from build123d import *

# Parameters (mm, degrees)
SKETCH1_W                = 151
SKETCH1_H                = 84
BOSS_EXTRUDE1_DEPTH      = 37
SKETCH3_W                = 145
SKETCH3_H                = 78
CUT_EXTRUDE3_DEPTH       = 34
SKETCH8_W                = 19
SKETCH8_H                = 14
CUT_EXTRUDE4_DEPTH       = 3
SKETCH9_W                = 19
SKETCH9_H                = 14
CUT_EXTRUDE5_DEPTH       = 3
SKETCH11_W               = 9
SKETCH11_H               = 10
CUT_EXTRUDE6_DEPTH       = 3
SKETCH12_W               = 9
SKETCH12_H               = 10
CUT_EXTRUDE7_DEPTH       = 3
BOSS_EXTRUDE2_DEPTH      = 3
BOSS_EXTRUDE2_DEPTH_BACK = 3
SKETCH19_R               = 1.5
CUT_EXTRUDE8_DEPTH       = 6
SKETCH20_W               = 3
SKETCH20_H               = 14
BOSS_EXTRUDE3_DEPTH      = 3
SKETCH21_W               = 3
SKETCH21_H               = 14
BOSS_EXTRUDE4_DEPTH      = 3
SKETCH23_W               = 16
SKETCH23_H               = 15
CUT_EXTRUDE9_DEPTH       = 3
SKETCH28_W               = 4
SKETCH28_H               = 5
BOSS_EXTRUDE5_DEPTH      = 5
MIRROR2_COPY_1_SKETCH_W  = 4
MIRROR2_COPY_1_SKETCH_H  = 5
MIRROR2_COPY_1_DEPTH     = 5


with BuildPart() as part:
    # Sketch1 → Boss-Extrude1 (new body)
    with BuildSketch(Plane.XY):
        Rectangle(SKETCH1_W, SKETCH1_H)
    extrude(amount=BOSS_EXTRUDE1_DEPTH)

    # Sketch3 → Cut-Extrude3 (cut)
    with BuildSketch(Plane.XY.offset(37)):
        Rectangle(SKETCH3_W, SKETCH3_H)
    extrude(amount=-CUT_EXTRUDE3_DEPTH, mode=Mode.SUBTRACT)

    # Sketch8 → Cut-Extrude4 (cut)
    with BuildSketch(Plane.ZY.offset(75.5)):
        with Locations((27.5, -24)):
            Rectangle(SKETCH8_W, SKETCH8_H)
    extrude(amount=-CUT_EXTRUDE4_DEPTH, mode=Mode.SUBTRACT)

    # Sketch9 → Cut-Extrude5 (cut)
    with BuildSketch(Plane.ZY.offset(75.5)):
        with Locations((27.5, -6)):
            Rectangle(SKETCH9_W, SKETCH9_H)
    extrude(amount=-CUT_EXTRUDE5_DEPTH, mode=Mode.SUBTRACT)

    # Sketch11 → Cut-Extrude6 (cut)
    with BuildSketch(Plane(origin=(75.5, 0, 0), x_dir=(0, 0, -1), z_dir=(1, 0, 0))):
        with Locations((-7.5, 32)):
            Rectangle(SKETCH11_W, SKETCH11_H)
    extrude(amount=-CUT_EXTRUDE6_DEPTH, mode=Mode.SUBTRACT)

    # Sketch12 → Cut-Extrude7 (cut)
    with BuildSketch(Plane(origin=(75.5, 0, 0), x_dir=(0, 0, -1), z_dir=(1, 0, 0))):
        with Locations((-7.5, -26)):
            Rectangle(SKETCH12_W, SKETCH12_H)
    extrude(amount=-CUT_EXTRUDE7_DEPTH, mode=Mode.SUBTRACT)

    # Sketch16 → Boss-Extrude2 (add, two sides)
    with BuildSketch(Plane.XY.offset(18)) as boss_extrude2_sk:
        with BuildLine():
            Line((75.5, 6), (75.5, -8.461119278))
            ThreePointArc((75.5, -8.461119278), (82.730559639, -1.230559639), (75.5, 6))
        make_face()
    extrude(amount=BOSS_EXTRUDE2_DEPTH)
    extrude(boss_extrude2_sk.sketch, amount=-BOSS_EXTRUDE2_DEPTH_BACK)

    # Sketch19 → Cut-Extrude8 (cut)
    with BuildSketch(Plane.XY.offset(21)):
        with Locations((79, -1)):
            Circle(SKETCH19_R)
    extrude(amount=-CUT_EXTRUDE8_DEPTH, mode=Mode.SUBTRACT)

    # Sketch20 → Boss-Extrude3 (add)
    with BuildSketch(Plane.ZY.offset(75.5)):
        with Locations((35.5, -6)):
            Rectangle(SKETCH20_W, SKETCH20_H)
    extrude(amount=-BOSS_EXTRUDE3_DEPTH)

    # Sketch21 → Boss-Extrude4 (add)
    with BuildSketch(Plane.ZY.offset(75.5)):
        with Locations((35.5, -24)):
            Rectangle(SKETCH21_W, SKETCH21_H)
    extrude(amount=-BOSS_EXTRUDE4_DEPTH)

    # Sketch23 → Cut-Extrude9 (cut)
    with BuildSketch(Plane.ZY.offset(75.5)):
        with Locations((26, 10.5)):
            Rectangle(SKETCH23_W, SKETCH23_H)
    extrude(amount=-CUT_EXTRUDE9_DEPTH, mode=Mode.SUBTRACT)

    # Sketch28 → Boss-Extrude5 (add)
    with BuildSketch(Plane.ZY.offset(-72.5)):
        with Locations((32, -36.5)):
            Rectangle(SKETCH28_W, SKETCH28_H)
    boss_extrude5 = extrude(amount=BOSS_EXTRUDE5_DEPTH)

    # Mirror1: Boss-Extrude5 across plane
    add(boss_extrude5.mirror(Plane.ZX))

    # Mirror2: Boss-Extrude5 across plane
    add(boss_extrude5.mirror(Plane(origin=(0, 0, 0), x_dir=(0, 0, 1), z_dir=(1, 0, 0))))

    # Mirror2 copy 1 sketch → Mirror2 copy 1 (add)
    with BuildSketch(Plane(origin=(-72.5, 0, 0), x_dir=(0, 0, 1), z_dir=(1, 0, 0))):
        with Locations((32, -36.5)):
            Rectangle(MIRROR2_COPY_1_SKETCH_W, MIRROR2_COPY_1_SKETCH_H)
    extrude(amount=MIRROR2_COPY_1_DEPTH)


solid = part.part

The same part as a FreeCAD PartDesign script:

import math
import FreeCAD as App
import Part
import Sketcher

V = App.Vector

doc = App.newDocument("Part")
body = doc.addObject("PartDesign::Body", "Body")

sketch1 = doc.addObject("Sketcher::SketchObject", "Sketch")
body.addObject(sketch1)
sketch1.AttachmentSupport = (doc.XY_Plane, [""])
sketch1.MapMode = "FlatFace"
sketch1.addGeometry(Part.LineSegment(V(-76, 42, 0), V(-76, -42, 0)), False)
sketch1.addGeometry(Part.LineSegment(V(-76, -42, 0), V(76, -42, 0)), False)
sketch1.addGeometry(Part.LineSegment(V(76, -42, 0), V(76, 42, 0)), False)
sketch1.addGeometry(Part.LineSegment(V(76, 42, 0), V(-76, 42, 0)), False)
sketch1.addConstraint(Sketcher.Constraint("Coincident", 0, 2, 1, 1))
sketch1.addConstraint(Sketcher.Constraint("Coincident", 1, 2, 2, 1))
sketch1.addConstraint(Sketcher.Constraint("Coincident", 2, 2, 3, 1))
sketch1.addConstraint(Sketcher.Constraint("Coincident", 3, 2, 0, 1))
sketch1.addConstraint(Sketcher.Constraint("Vertical", 0))
sketch1.addConstraint(Sketcher.Constraint("Horizontal", 1))
sketch1.addConstraint(Sketcher.Constraint("Vertical", 2))
sketch1.addConstraint(Sketcher.Constraint("Horizontal", 3))
sketch1.addConstraint(Sketcher.Constraint("Symmetric", 0, 2, 2, 2, -1, 1))
sketch1.addConstraint(Sketcher.Constraint("DistanceX", 1, 1, 1, 2, 151.0))
sketch1.addConstraint(Sketcher.Constraint("DistanceY", 0, 2, 0, 1, 84.0))
pad1 = doc.addObject("PartDesign::Pad", "Pad")
body.addObject(pad1)
pad1.Profile = sketch1
pad1.Length = 37

sketch2 = doc.addObject("Sketcher::SketchObject", "Sketch001")
body.addObject(sketch2)
sketch2.AttachmentSupport = (doc.XY_Plane, [""])
sketch2.MapMode = "FlatFace"
sketch2.AttachmentOffset = App.Placement(V(0, 0, 37), App.Rotation())
sketch2.addGeometry(Part.LineSegment(V(-72, 39, 0), V(-72, -39, 0)), False)
sketch2.addGeometry(Part.LineSegment(V(-72, -39, 0), V(72, -39, 0)), False)
sketch2.addGeometry(Part.LineSegment(V(72, -39, 0), V(72, 39, 0)), False)
sketch2.addGeometry(Part.LineSegment(V(72, 39, 0), V(-72, 39, 0)), False)
sketch2.addConstraint(Sketcher.Constraint("Coincident", 0, 2, 1, 1))
sketch2.addConstraint(Sketcher.Constraint("Coincident", 1, 2, 2, 1))
sketch2.addConstraint(Sketcher.Constraint("Coincident", 2, 2, 3, 1))
sketch2.addConstraint(Sketcher.Constraint("Coincident", 3, 2, 0, 1))
sketch2.addConstraint(Sketcher.Constraint("Vertical", 0))
sketch2.addConstraint(Sketcher.Constraint("Horizontal", 1))
sketch2.addConstraint(Sketcher.Constraint("Vertical", 2))
sketch2.addConstraint(Sketcher.Constraint("Horizontal", 3))
sketch2.addConstraint(Sketcher.Constraint("Symmetric", 0, 2, 2, 2, -1, 1))
sketch2.addConstraint(Sketcher.Constraint("DistanceX", 1, 1, 1, 2, 145.0))
sketch2.addConstraint(Sketcher.Constraint("DistanceY", 0, 2, 0, 1, 78.0))
pocket1 = doc.addObject("PartDesign::Pocket", "Pocket")
body.addObject(pocket1)
pocket1.Profile = sketch2
pocket1.Length = 34

sketch3 = doc.addObject("Sketcher::SketchObject", "Sketch002")
body.addObject(sketch3)
sketch3.AttachmentSupport = (doc.YZ_Plane, [""])
sketch3.MapMode = "FlatFace"
sketch3.AttachmentOffset = App.Placement(V(0, 0, -75.5), App.Rotation())
sketch3.addGeometry(Part.LineSegment(V(-17, 18, 0), V(-31, 18, 0)), False)
sketch3.addGeometry(Part.LineSegment(V(-31, 18, 0), V(-31, 37, 0)), False)
sketch3.addGeometry(Part.LineSegment(V(-31, 37, 0), V(-17, 37, 0)), False)
sketch3.addGeometry(Part.LineSegment(V(-17, 37, 0), V(-17, 18, 0)), False)
sketch3.addConstraint(Sketcher.Constraint("Coincident", 0, 2, 1, 1))
sketch3.addConstraint(Sketcher.Constraint("Coincident", 1, 2, 2, 1))
sketch3.addConstraint(Sketcher.Constraint("Coincident", 2, 2, 3, 1))
sketch3.addConstraint(Sketcher.Constraint("Coincident", 3, 2, 0, 1))
sketch3.addConstraint(Sketcher.Constraint("Horizontal", 0))
sketch3.addConstraint(Sketcher.Constraint("Vertical", 1))
sketch3.addConstraint(Sketcher.Constraint("Horizontal", 2))
sketch3.addConstraint(Sketcher.Constraint("Vertical", 3))
sketch3.addConstraint(Sketcher.Constraint("DistanceX", 0, 2, 0, 1, 14.0))
sketch3.addConstraint(Sketcher.Constraint("DistanceY", 1, 1, 1, 2, 19.0))
sketch3.addConstraint(Sketcher.Constraint("DistanceX", 0, 2, -1, 1, 31.0))
sketch3.addConstraint(Sketcher.Constraint("DistanceY", -1, 1, 0, 2, 18.0))
pocket2 = doc.addObject("PartDesign::Pocket", "Pocket001")
body.addObject(pocket2)
pocket2.Profile = sketch3
pocket2.Length = 3
pocket2.Reversed = True

sketch4 = doc.addObject("Sketcher::SketchObject", "Sketch003")
body.addObject(sketch4)
sketch4.AttachmentSupport = (doc.YZ_Plane, [""])
sketch4.MapMode = "FlatFace"
sketch4.AttachmentOffset = App.Placement(V(0, 0, -75.5), App.Rotation())
sketch4.addGeometry(Part.LineSegment(V(1, 18, 0), V(-13, 18, 0)), False)
sketch4.addGeometry(Part.LineSegment(V(-13, 18, 0), V(-13, 37, 0)), False)
sketch4.addGeometry(Part.LineSegment(V(-13, 37, 0), V(1, 37, 0)), False)
sketch4.addGeometry(Part.LineSegment(V(1, 37, 0), V(1, 18, 0)), False)
sketch4.addConstraint(Sketcher.Constraint("Coincident", 0, 2, 1, 1))
sketch4.addConstraint(Sketcher.Constraint("Coincident", 1, 2, 2, 1))
sketch4.addConstraint(Sketcher.Constraint("Coincident", 2, 2, 3, 1))
sketch4.addConstraint(Sketcher.Constraint("Coincident", 3, 2, 0, 1))
sketch4.addConstraint(Sketcher.Constraint("Horizontal", 0))
sketch4.addConstraint(Sketcher.Constraint("Vertical", 1))
sketch4.addConstraint(Sketcher.Constraint("Horizontal", 2))
sketch4.addConstraint(Sketcher.Constraint("Vertical", 3))
sketch4.addConstraint(Sketcher.Constraint("DistanceX", 0, 2, 0, 1, 14.0))
sketch4.addConstraint(Sketcher.Constraint("DistanceY", 1, 1, 1, 2, 19.0))
sketch4.addConstraint(Sketcher.Constraint("DistanceX", 0, 2, -1, 1, 13.0))
sketch4.addConstraint(Sketcher.Constraint("DistanceY", -1, 1, 0, 2, 18.0))
pocket3 = doc.addObject("PartDesign::Pocket", "Pocket002")
body.addObject(pocket3)
pocket3.Profile = sketch4
pocket3.Length = 3
pocket3.Reversed = True

sketch5 = doc.addObject("Sketcher::SketchObject", "Sketch004")
body.addObject(sketch5)
sketch5.AttachmentSupport = (doc.YZ_Plane, [""])
sketch5.MapMode = "FlatFace"
sketch5.AttachmentOffset = App.Placement(V(0, 0, 75.5), App.Rotation())
sketch5.addGeometry(Part.LineSegment(V(37, 12, 0), V(27, 12, 0)), False)
sketch5.addGeometry(Part.LineSegment(V(27, 12, 0), V(27, 3, 0)), False)
sketch5.addGeometry(Part.LineSegment(V(27, 3, 0), V(37, 3, 0)), False)
sketch5.addGeometry(Part.LineSegment(V(37, 3, 0), V(37, 12, 0)), False)
sketch5.addConstraint(Sketcher.Constraint("Coincident", 0, 2, 1, 1))
sketch5.addConstraint(Sketcher.Constraint("Coincident", 1, 2, 2, 1))
sketch5.addConstraint(Sketcher.Constraint("Coincident", 2, 2, 3, 1))
sketch5.addConstraint(Sketcher.Constraint("Coincident", 3, 2, 0, 1))
sketch5.addConstraint(Sketcher.Constraint("Horizontal", 0))
sketch5.addConstraint(Sketcher.Constraint("Vertical", 1))
sketch5.addConstraint(Sketcher.Constraint("Horizontal", 2))
sketch5.addConstraint(Sketcher.Constraint("Vertical", 3))
sketch5.addConstraint(Sketcher.Constraint("DistanceX", 0, 2, 0, 1, 10.0))
sketch5.addConstraint(Sketcher.Constraint("DistanceY", 1, 2, 1, 1, 9.0))
sketch5.addConstraint(Sketcher.Constraint("DistanceX", -1, 1, 0, 2, 27.0))
sketch5.addConstraint(Sketcher.Constraint("DistanceY", -1, 1, 0, 2, 12.0))
pocket4 = doc.addObject("PartDesign::Pocket", "Pocket003")
body.addObject(pocket4)
pocket4.Profile = sketch5
pocket4.Length = 3

sketch6 = doc.addObject("Sketcher::SketchObject", "Sketch005")
body.addObject(sketch6)
sketch6.AttachmentSupport = (doc.YZ_Plane, [""])
sketch6.MapMode = "FlatFace"
sketch6.AttachmentOffset = App.Placement(V(0, 0, 75.5), App.Rotation())
sketch6.addGeometry(Part.LineSegment(V(-21, 12, 0), V(-31, 12, 0)), False)
sketch6.addGeometry(Part.LineSegment(V(-31, 12, 0), V(-31, 3, 0)), False)
sketch6.addGeometry(Part.LineSegment(V(-31, 3, 0), V(-21, 3, 0)), False)
sketch6.addGeometry(Part.LineSegment(V(-21, 3, 0), V(-21, 12, 0)), False)
sketch6.addConstraint(Sketcher.Constraint("Coincident", 0, 2, 1, 1))
sketch6.addConstraint(Sketcher.Constraint("Coincident", 1, 2, 2, 1))
sketch6.addConstraint(Sketcher.Constraint("Coincident", 2, 2, 3, 1))
sketch6.addConstraint(Sketcher.Constraint("Coincident", 3, 2, 0, 1))
sketch6.addConstraint(Sketcher.Constraint("Horizontal", 0))
sketch6.addConstraint(Sketcher.Constraint("Vertical", 1))
sketch6.addConstraint(Sketcher.Constraint("Horizontal", 2))
sketch6.addConstraint(Sketcher.Constraint("Vertical", 3))
sketch6.addConstraint(Sketcher.Constraint("DistanceX", 0, 2, 0, 1, 10.0))
sketch6.addConstraint(Sketcher.Constraint("DistanceY", 1, 2, 1, 1, 9.0))
sketch6.addConstraint(Sketcher.Constraint("DistanceX", 0, 2, -1, 1, 31.0))
sketch6.addConstraint(Sketcher.Constraint("DistanceY", -1, 1, 0, 2, 12.0))
pocket5 = doc.addObject("PartDesign::Pocket", "Pocket004")
body.addObject(pocket5)
pocket5.Profile = sketch6
pocket5.Length = 3

sketch7 = doc.addObject("Sketcher::SketchObject", "Sketch006")
body.addObject(sketch7)
sketch7.AttachmentSupport = (doc.XY_Plane, [""])
sketch7.MapMode = "FlatFace"
sketch7.AttachmentOffset = App.Placement(V(0, 0, 18), App.Rotation())
sketch7.addGeometry(Part.LineSegment(V(76, 6, 0), V(76, -8, 0)), False)
sketch7.addGeometry(Part.ArcOfCircle(Part.Circle(V(76, -1, 0), V(0, 0, 1), 7), math.radians(-90), math.radians(90)), False)
sketch7.addConstraint(Sketcher.Constraint("Coincident", 0, 1, 1, 2))
sketch7.addConstraint(Sketcher.Constraint("Coincident", 1, 1, 0, 2))
sketch7.addConstraint(Sketcher.Constraint("Vertical", 0))
sketch7.addConstraint(Sketcher.Constraint("Vertical", 1, 3, 0, 1))
sketch7.addConstraint(Sketcher.Constraint("DistanceY", -1, 1, 0, 1, 6.0))
sketch7.addConstraint(Sketcher.Constraint("DistanceX", -1, 1, 1, 3, 75.5))
sketch7.addConstraint(Sketcher.Constraint("Radius", 1, 7.23056))
pad2 = doc.addObject("PartDesign::Pad", "Pad001")
body.addObject(pad2)
pad2.Profile = sketch7
pad2.Type = "TwoLengths"
pad2.Length = 3
pad2.Length2 = 3

sketch8 = doc.addObject("Sketcher::SketchObject", "Sketch007")
body.addObject(sketch8)
sketch8.AttachmentSupport = (doc.XY_Plane, [""])
sketch8.MapMode = "FlatFace"
sketch8.AttachmentOffset = App.Placement(V(0, 0, 21), App.Rotation())
sketch8.addGeometry(Part.Circle(V(79, -1, 0), V(0, 0, 1), 1.5), False)
sketch8.addConstraint(Sketcher.Constraint("Diameter", 0, 3.0))
sketch8.addConstraint(Sketcher.Constraint("DistanceX", -1, 1, 0, 3, 79.0))
sketch8.addConstraint(Sketcher.Constraint("DistanceY", 0, 3, -1, 1, 1.0))
pocket6 = doc.addObject("PartDesign::Pocket", "Pocket005")
body.addObject(pocket6)
pocket6.Profile = sketch8
pocket6.Length = 6

sketch9 = doc.addObject("Sketcher::SketchObject", "Sketch008")
body.addObject(sketch9)
sketch9.AttachmentSupport = (doc.YZ_Plane, [""])
sketch9.MapMode = "FlatFace"
sketch9.AttachmentOffset = App.Placement(V(0, 0, -75.5), App.Rotation())
sketch9.addGeometry(Part.LineSegment(V(1, 34, 0), V(-13, 34, 0)), False)
sketch9.addGeometry(Part.LineSegment(V(-13, 34, 0), V(-13, 37, 0)), False)
sketch9.addGeometry(Part.LineSegment(V(-13, 37, 0), V(1, 37, 0)), False)
sketch9.addGeometry(Part.LineSegment(V(1, 37, 0), V(1, 34, 0)), False)
sketch9.addConstraint(Sketcher.Constraint("Coincident", 0, 2, 1, 1))
sketch9.addConstraint(Sketcher.Constraint("Coincident", 1, 2, 2, 1))
sketch9.addConstraint(Sketcher.Constraint("Coincident", 2, 2, 3, 1))
sketch9.addConstraint(Sketcher.Constraint("Coincident", 3, 2, 0, 1))
sketch9.addConstraint(Sketcher.Constraint("Horizontal", 0))
sketch9.addConstraint(Sketcher.Constraint("Vertical", 1))
sketch9.addConstraint(Sketcher.Constraint("Horizontal", 2))
sketch9.addConstraint(Sketcher.Constraint("Vertical", 3))
sketch9.addConstraint(Sketcher.Constraint("DistanceX", 0, 2, 0, 1, 14.0))
sketch9.addConstraint(Sketcher.Constraint("DistanceY", 1, 1, 1, 2, 3.0))
sketch9.addConstraint(Sketcher.Constraint("DistanceX", 0, 2, -1, 1, 13.0))
sketch9.addConstraint(Sketcher.Constraint("DistanceY", -1, 1, 0, 2, 34.0))
pad3 = doc.addObject("PartDesign::Pad", "Pad002")
body.addObject(pad3)
pad3.Profile = sketch9
pad3.Length = 3

sketch10 = doc.addObject("Sketcher::SketchObject", "Sketch009")
body.addObject(sketch10)
sketch10.AttachmentSupport = (doc.YZ_Plane, [""])
sketch10.MapMode = "FlatFace"
sketch10.AttachmentOffset = App.Placement(V(0, 0, -75.5), App.Rotation())
sketch10.addGeometry(Part.LineSegment(V(-17, 34, 0), V(-31, 34, 0)), False)
sketch10.addGeometry(Part.LineSegment(V(-31, 34, 0), V(-31, 37, 0)), False)
sketch10.addGeometry(Part.LineSegment(V(-31, 37, 0), V(-17, 37, 0)), False)
sketch10.addGeometry(Part.LineSegment(V(-17, 37, 0), V(-17, 34, 0)), False)
sketch10.addConstraint(Sketcher.Constraint("Coincident", 0, 2, 1, 1))
sketch10.addConstraint(Sketcher.Constraint("Coincident", 1, 2, 2, 1))
sketch10.addConstraint(Sketcher.Constraint("Coincident", 2, 2, 3, 1))
sketch10.addConstraint(Sketcher.Constraint("Coincident", 3, 2, 0, 1))
sketch10.addConstraint(Sketcher.Constraint("Horizontal", 0))
sketch10.addConstraint(Sketcher.Constraint("Vertical", 1))
sketch10.addConstraint(Sketcher.Constraint("Horizontal", 2))
sketch10.addConstraint(Sketcher.Constraint("Vertical", 3))
sketch10.addConstraint(Sketcher.Constraint("DistanceX", 0, 2, 0, 1, 14.0))
sketch10.addConstraint(Sketcher.Constraint("DistanceY", 1, 1, 1, 2, 3.0))
sketch10.addConstraint(Sketcher.Constraint("DistanceX", 0, 2, -1, 1, 31.0))
sketch10.addConstraint(Sketcher.Constraint("DistanceY", -1, 1, 0, 2, 34.0))
pad4 = doc.addObject("PartDesign::Pad", "Pad003")
body.addObject(pad4)
pad4.Profile = sketch10
pad4.Length = 3

sketch11 = doc.addObject("Sketcher::SketchObject", "Sketch010")
body.addObject(sketch11)
sketch11.AttachmentSupport = (doc.YZ_Plane, [""])
sketch11.MapMode = "FlatFace"
sketch11.AttachmentOffset = App.Placement(V(0, 0, -75.5), App.Rotation())
sketch11.addGeometry(Part.LineSegment(V(18, 18, 0), V(3, 18, 0)), False)
sketch11.addGeometry(Part.LineSegment(V(3, 18, 0), V(3, 34, 0)), False)
sketch11.addGeometry(Part.LineSegment(V(3, 34, 0), V(18, 34, 0)), False)
sketch11.addGeometry(Part.LineSegment(V(18, 34, 0), V(18, 18, 0)), False)
sketch11.addConstraint(Sketcher.Constraint("Coincident", 0, 2, 1, 1))
sketch11.addConstraint(Sketcher.Constraint("Coincident", 1, 2, 2, 1))
sketch11.addConstraint(Sketcher.Constraint("Coincident", 2, 2, 3, 1))
sketch11.addConstraint(Sketcher.Constraint("Coincident", 3, 2, 0, 1))
sketch11.addConstraint(Sketcher.Constraint("Horizontal", 0))
sketch11.addConstraint(Sketcher.Constraint("Vertical", 1))
sketch11.addConstraint(Sketcher.Constraint("Horizontal", 2))
sketch11.addConstraint(Sketcher.Constraint("Vertical", 3))
sketch11.addConstraint(Sketcher.Constraint("DistanceX", 0, 2, 0, 1, 15.0))
sketch11.addConstraint(Sketcher.Constraint("DistanceY", 1, 1, 1, 2, 16.0))
sketch11.addConstraint(Sketcher.Constraint("DistanceX", -1, 1, 0, 2, 3.0))
sketch11.addConstraint(Sketcher.Constraint("DistanceY", -1, 1, 0, 2, 18.0))
pocket7 = doc.addObject("PartDesign::Pocket", "Pocket006")
body.addObject(pocket7)
pocket7.Profile = sketch11
pocket7.Length = 3
pocket7.Reversed = True

sketch12 = doc.addObject("Sketcher::SketchObject", "Sketch011")
body.addObject(sketch12)
sketch12.AttachmentSupport = (doc.YZ_Plane, [""])
sketch12.MapMode = "FlatFace"
sketch12.AttachmentOffset = App.Placement(V(0, 0, 72.5), App.Rotation())
sketch12.addGeometry(Part.LineSegment(V(-34, 30, 0), V(-39, 30, 0)), False)
sketch12.addGeometry(Part.LineSegment(V(-39, 30, 0), V(-39, 34, 0)), False)
sketch12.addGeometry(Part.LineSegment(V(-39, 34, 0), V(-34, 34, 0)), False)
sketch12.addGeometry(Part.LineSegment(V(-34, 34, 0), V(-34, 30, 0)), False)
sketch12.addConstraint(Sketcher.Constraint("Coincident", 0, 2, 1, 1))
sketch12.addConstraint(Sketcher.Constraint("Coincident", 1, 2, 2, 1))
sketch12.addConstraint(Sketcher.Constraint("Coincident", 2, 2, 3, 1))
sketch12.addConstraint(Sketcher.Constraint("Coincident", 3, 2, 0, 1))
sketch12.addConstraint(Sketcher.Constraint("Horizontal", 0))
sketch12.addConstraint(Sketcher.Constraint("Vertical", 1))
sketch12.addConstraint(Sketcher.Constraint("Horizontal", 2))
sketch12.addConstraint(Sketcher.Constraint("Vertical", 3))
sketch12.addConstraint(Sketcher.Constraint("DistanceX", 0, 2, 0, 1, 5.0))
sketch12.addConstraint(Sketcher.Constraint("DistanceY", 1, 1, 1, 2, 4.0))
sketch12.addConstraint(Sketcher.Constraint("DistanceX", 0, 2, -1, 1, 39.0))
sketch12.addConstraint(Sketcher.Constraint("DistanceY", -1, 1, 0, 2, 30.0))
pad5 = doc.addObject("PartDesign::Pad", "Pad004")
body.addObject(pad5)
pad5.Profile = sketch12
pad5.Length = 5
pad5.Reversed = True
doc.recompute()

mirrored = doc.addObject("PartDesign::Mirrored", "Mirrored")
body.addObject(mirrored)
mirrored.Originals = [pad5]
mirrored.MirrorPlane = (doc.XZ_Plane, [""])
body.Tip = mirrored
doc.recompute()

mirrored2 = doc.addObject("PartDesign::Mirrored", "Mirrored001")
body.addObject(mirrored2)
mirrored2.Originals = [pad5]
mirrored2.MirrorPlane = (doc.YZ_Plane, [""])
body.Tip = mirrored2

sketch13 = doc.addObject("Sketcher::SketchObject", "Sketch012")
body.addObject(sketch13)
sketch13.AttachmentSupport = (doc.YZ_Plane, [""])
sketch13.MapMode = "FlatFace"
sketch13.AttachmentOffset = App.Placement(V(0, 0, -72.5), App.Rotation())
sketch13.addGeometry(Part.LineSegment(V(34, 30, 0), V(39, 30, 0)), False)
sketch13.addGeometry(Part.LineSegment(V(39, 30, 0), V(39, 34, 0)), False)
sketch13.addGeometry(Part.LineSegment(V(39, 34, 0), V(34, 34, 0)), False)
sketch13.addGeometry(Part.LineSegment(V(34, 34, 0), V(34, 30, 0)), False)
sketch13.addConstraint(Sketcher.Constraint("Coincident", 0, 2, 1, 1))
sketch13.addConstraint(Sketcher.Constraint("Coincident", 1, 2, 2, 1))
sketch13.addConstraint(Sketcher.Constraint("Coincident", 2, 2, 3, 1))
sketch13.addConstraint(Sketcher.Constraint("Coincident", 3, 2, 0, 1))
sketch13.addConstraint(Sketcher.Constraint("Horizontal", 0))
sketch13.addConstraint(Sketcher.Constraint("Vertical", 1))
sketch13.addConstraint(Sketcher.Constraint("Horizontal", 2))
sketch13.addConstraint(Sketcher.Constraint("Vertical", 3))
sketch13.addConstraint(Sketcher.Constraint("DistanceX", 0, 1, 0, 2, 5.0))
sketch13.addConstraint(Sketcher.Constraint("DistanceY", 1, 1, 1, 2, 4.0))
sketch13.addConstraint(Sketcher.Constraint("DistanceX", -1, 1, 0, 2, 39.0))
sketch13.addConstraint(Sketcher.Constraint("DistanceY", -1, 1, 0, 2, 30.0))
pad6 = doc.addObject("PartDesign::Pad", "Pad005")
body.addObject(pad6)
pad6.Profile = sketch13
pad6.Length = 5

doc.recompute()
